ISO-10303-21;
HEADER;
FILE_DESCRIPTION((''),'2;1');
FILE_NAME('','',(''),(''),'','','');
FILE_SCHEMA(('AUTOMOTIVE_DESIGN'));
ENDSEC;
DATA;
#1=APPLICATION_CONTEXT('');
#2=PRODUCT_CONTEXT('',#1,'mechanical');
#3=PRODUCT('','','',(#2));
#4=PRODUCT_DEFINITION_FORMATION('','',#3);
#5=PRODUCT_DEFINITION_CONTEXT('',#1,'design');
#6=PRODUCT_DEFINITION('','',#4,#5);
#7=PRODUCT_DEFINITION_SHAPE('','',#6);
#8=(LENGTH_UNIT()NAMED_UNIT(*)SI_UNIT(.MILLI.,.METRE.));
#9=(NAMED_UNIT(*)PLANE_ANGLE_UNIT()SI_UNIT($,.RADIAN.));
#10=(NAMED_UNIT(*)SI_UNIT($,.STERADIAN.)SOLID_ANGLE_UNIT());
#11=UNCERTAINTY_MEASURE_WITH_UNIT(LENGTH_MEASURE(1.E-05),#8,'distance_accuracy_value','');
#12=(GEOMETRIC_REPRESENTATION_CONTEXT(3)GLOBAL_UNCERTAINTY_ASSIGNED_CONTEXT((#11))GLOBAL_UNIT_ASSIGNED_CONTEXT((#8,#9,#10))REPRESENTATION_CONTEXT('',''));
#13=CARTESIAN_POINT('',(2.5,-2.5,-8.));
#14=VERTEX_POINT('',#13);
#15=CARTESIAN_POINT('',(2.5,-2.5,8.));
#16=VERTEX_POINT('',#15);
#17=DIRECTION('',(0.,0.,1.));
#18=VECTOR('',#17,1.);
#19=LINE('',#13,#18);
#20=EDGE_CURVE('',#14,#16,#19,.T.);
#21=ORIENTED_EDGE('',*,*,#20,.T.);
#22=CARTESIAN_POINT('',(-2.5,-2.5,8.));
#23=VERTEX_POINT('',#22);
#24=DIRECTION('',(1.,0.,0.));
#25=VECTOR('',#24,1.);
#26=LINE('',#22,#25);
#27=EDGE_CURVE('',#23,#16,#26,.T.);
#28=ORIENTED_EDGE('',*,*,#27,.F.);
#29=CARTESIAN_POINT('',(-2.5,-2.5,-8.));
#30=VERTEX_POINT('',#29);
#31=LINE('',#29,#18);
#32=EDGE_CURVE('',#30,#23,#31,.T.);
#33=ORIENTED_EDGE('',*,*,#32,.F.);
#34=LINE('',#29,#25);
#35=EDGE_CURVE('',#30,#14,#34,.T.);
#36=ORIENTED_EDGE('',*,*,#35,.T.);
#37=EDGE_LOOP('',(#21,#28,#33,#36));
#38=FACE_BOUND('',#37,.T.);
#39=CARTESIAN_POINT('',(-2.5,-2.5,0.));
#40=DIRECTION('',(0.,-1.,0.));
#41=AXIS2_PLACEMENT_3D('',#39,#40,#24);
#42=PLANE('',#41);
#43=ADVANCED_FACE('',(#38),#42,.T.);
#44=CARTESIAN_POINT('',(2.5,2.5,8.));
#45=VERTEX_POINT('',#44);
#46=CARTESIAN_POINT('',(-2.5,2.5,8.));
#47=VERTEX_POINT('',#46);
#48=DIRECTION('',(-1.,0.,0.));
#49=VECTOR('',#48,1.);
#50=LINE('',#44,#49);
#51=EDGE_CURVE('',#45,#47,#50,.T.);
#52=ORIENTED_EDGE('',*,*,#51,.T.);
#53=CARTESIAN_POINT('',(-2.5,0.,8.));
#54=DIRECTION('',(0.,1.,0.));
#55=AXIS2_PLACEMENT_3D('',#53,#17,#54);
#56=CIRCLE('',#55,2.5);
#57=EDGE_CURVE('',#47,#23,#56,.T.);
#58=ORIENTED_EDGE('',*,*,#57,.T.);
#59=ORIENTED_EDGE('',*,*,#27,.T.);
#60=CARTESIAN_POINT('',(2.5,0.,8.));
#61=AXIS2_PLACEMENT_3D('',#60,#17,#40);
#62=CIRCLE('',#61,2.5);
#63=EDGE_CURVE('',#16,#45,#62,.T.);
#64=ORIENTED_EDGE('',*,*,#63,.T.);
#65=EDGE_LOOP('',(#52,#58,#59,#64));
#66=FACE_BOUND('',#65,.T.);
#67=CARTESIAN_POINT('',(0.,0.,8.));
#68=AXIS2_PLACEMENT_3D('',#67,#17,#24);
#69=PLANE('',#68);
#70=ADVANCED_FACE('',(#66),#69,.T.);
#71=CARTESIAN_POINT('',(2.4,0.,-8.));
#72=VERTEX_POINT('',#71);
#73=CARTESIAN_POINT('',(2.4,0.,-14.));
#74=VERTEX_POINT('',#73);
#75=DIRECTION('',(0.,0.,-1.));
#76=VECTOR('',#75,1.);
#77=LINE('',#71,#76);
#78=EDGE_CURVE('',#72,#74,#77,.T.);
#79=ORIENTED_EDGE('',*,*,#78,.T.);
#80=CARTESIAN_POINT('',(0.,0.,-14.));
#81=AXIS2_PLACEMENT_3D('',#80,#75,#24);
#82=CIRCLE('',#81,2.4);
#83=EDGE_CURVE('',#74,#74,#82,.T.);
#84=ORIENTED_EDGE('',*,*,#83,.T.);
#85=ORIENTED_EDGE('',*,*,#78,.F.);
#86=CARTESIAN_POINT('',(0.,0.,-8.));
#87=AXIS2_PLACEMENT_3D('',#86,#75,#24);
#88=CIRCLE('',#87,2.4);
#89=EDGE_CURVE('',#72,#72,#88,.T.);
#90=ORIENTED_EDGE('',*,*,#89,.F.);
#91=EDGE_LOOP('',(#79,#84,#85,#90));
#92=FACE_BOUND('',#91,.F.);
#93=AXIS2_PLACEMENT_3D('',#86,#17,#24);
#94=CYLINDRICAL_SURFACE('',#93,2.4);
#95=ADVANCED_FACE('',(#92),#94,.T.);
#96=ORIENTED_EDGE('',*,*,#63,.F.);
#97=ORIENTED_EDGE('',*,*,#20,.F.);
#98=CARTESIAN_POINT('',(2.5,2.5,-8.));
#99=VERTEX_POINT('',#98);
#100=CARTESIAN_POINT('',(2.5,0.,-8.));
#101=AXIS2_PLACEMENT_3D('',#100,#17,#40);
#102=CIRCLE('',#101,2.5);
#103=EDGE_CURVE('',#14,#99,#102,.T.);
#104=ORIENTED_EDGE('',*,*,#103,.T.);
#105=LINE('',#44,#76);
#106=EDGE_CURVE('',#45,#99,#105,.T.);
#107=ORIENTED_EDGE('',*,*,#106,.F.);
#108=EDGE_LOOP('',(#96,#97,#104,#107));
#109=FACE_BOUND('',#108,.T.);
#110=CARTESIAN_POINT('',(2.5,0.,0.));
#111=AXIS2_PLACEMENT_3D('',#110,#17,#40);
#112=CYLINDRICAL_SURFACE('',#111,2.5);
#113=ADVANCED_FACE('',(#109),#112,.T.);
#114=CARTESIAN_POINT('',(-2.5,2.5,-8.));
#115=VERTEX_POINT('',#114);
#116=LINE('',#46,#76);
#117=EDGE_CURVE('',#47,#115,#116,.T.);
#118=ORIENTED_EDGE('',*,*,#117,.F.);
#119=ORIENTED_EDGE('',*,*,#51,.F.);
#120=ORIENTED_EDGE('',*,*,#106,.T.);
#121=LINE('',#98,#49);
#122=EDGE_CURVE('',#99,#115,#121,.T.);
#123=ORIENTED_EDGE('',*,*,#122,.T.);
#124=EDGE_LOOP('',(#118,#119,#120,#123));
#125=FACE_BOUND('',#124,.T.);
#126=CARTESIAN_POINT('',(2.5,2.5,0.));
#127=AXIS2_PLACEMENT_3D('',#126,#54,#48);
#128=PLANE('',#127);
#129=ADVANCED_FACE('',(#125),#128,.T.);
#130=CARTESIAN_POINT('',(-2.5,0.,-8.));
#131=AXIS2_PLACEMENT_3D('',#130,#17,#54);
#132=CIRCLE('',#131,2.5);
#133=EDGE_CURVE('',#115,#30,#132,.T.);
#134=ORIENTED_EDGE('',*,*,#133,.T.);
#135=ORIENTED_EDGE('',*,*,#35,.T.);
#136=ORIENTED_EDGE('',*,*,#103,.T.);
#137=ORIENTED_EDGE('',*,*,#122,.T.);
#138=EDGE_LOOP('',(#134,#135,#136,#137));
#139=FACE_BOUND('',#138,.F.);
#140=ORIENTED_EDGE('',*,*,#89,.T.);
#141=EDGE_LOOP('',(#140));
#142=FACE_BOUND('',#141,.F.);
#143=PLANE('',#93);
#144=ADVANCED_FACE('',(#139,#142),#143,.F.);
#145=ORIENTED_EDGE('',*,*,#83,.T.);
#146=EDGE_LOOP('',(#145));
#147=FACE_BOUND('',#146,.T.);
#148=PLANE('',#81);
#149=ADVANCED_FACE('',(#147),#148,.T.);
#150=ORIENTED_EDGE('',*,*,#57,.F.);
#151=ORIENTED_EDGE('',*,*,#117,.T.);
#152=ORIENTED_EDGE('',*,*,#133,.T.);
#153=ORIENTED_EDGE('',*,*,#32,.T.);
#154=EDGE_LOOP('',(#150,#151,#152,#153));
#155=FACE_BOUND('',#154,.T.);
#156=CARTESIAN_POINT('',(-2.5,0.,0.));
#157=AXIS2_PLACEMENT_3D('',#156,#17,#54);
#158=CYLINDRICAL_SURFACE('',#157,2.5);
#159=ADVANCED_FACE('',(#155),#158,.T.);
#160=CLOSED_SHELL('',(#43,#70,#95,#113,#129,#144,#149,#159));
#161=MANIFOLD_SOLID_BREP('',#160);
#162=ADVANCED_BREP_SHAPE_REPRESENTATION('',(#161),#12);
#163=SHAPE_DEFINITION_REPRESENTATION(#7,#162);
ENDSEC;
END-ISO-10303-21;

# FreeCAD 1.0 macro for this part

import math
import FreeCAD as App
import Part
import Sketcher

V = App.Vector

doc = App.newDocument("Part")
body = doc.addObject("PartDesign::Body", "Body")

sketch1 = body.newObject("Sketcher::SketchObject", "Sketch")
sketch1.AttachmentSupport = (doc.getObject("XY_Plane"), [""])
sketch1.MapMode = "FlatFace"
sketch1.addGeometry(Part.ArcOfCircle(Part.Circle(V(-2.5, 0, 0), V(0, 0, 1), 2.5), math.radians(90), math.radians(270)), False)
sketch1.addGeometry(Part.LineSegment(V(-2.5, -2.5, 0), V(2.5, -2.5, 0)), False)
sketch1.addGeometry(Part.ArcOfCircle(Part.Circle(V(2.5, 0, 0), V(0, 0, 1), 2.5), math.radians(-90), math.radians(90)), False)
sketch1.addGeometry(Part.LineSegment(V(2.5, 2.5, 0), V(-2.5, 2.5, 0)), False)
sketch1.addConstraint(Sketcher.Constraint("Tangent", 0, 2, 1, 1))
sketch1.addConstraint(Sketcher.Constraint("Tangent", 1, 2, 2, 1))
sketch1.addConstraint(Sketcher.Constraint("Tangent", 2, 2, 3, 1))
sketch1.addConstraint(Sketcher.Constraint("Tangent", 3, 2, 0, 1))
sketch1.addConstraint(Sketcher.Constraint("Horizontal", 1))
sketch1.addConstraint(Sketcher.Constraint("Horizontal", 3))
sketch1.addConstraint(Sketcher.Constraint("Symmetric", 0, 3, 2, 3, -1, 1))
sketch1.addConstraint(Sketcher.Constraint("Radius", 0, 2.5))
sketch1.addConstraint(Sketcher.Constraint("DistanceX", 1, 1, 1, 2, 5.0))
pad1 = body.newObject("PartDesign::Pad", "Pad")
pad1.Profile = sketch1
pad1.Length = 16
pad1.Midplane = True

sketch2 = body.newObject("Sketcher::SketchObject", "Sketch001")
sketch2.AttachmentSupport = (doc.getObject("XY_Plane"), [""])
sketch2.MapMode = "FlatFace"
sketch2.AttachmentOffset = App.Placement(V(0, 0, -8), App.Rotation())
sketch2.addGeometry(Part.Circle(V(0, 0, 0), V(0, 0, 1), 2.4), False)
sketch2.addConstraint(Sketcher.Constraint("Coincident", 0, 3, -1, 1))
sketch2.addConstraint(Sketcher.Constraint("Diameter", 0, 4.8))
pad2 = body.newObject("PartDesign::Pad", "Pad001")
pad2.Profile = sketch2
pad2.Length = 6
pad2.Reversed = True

doc.recompute()
